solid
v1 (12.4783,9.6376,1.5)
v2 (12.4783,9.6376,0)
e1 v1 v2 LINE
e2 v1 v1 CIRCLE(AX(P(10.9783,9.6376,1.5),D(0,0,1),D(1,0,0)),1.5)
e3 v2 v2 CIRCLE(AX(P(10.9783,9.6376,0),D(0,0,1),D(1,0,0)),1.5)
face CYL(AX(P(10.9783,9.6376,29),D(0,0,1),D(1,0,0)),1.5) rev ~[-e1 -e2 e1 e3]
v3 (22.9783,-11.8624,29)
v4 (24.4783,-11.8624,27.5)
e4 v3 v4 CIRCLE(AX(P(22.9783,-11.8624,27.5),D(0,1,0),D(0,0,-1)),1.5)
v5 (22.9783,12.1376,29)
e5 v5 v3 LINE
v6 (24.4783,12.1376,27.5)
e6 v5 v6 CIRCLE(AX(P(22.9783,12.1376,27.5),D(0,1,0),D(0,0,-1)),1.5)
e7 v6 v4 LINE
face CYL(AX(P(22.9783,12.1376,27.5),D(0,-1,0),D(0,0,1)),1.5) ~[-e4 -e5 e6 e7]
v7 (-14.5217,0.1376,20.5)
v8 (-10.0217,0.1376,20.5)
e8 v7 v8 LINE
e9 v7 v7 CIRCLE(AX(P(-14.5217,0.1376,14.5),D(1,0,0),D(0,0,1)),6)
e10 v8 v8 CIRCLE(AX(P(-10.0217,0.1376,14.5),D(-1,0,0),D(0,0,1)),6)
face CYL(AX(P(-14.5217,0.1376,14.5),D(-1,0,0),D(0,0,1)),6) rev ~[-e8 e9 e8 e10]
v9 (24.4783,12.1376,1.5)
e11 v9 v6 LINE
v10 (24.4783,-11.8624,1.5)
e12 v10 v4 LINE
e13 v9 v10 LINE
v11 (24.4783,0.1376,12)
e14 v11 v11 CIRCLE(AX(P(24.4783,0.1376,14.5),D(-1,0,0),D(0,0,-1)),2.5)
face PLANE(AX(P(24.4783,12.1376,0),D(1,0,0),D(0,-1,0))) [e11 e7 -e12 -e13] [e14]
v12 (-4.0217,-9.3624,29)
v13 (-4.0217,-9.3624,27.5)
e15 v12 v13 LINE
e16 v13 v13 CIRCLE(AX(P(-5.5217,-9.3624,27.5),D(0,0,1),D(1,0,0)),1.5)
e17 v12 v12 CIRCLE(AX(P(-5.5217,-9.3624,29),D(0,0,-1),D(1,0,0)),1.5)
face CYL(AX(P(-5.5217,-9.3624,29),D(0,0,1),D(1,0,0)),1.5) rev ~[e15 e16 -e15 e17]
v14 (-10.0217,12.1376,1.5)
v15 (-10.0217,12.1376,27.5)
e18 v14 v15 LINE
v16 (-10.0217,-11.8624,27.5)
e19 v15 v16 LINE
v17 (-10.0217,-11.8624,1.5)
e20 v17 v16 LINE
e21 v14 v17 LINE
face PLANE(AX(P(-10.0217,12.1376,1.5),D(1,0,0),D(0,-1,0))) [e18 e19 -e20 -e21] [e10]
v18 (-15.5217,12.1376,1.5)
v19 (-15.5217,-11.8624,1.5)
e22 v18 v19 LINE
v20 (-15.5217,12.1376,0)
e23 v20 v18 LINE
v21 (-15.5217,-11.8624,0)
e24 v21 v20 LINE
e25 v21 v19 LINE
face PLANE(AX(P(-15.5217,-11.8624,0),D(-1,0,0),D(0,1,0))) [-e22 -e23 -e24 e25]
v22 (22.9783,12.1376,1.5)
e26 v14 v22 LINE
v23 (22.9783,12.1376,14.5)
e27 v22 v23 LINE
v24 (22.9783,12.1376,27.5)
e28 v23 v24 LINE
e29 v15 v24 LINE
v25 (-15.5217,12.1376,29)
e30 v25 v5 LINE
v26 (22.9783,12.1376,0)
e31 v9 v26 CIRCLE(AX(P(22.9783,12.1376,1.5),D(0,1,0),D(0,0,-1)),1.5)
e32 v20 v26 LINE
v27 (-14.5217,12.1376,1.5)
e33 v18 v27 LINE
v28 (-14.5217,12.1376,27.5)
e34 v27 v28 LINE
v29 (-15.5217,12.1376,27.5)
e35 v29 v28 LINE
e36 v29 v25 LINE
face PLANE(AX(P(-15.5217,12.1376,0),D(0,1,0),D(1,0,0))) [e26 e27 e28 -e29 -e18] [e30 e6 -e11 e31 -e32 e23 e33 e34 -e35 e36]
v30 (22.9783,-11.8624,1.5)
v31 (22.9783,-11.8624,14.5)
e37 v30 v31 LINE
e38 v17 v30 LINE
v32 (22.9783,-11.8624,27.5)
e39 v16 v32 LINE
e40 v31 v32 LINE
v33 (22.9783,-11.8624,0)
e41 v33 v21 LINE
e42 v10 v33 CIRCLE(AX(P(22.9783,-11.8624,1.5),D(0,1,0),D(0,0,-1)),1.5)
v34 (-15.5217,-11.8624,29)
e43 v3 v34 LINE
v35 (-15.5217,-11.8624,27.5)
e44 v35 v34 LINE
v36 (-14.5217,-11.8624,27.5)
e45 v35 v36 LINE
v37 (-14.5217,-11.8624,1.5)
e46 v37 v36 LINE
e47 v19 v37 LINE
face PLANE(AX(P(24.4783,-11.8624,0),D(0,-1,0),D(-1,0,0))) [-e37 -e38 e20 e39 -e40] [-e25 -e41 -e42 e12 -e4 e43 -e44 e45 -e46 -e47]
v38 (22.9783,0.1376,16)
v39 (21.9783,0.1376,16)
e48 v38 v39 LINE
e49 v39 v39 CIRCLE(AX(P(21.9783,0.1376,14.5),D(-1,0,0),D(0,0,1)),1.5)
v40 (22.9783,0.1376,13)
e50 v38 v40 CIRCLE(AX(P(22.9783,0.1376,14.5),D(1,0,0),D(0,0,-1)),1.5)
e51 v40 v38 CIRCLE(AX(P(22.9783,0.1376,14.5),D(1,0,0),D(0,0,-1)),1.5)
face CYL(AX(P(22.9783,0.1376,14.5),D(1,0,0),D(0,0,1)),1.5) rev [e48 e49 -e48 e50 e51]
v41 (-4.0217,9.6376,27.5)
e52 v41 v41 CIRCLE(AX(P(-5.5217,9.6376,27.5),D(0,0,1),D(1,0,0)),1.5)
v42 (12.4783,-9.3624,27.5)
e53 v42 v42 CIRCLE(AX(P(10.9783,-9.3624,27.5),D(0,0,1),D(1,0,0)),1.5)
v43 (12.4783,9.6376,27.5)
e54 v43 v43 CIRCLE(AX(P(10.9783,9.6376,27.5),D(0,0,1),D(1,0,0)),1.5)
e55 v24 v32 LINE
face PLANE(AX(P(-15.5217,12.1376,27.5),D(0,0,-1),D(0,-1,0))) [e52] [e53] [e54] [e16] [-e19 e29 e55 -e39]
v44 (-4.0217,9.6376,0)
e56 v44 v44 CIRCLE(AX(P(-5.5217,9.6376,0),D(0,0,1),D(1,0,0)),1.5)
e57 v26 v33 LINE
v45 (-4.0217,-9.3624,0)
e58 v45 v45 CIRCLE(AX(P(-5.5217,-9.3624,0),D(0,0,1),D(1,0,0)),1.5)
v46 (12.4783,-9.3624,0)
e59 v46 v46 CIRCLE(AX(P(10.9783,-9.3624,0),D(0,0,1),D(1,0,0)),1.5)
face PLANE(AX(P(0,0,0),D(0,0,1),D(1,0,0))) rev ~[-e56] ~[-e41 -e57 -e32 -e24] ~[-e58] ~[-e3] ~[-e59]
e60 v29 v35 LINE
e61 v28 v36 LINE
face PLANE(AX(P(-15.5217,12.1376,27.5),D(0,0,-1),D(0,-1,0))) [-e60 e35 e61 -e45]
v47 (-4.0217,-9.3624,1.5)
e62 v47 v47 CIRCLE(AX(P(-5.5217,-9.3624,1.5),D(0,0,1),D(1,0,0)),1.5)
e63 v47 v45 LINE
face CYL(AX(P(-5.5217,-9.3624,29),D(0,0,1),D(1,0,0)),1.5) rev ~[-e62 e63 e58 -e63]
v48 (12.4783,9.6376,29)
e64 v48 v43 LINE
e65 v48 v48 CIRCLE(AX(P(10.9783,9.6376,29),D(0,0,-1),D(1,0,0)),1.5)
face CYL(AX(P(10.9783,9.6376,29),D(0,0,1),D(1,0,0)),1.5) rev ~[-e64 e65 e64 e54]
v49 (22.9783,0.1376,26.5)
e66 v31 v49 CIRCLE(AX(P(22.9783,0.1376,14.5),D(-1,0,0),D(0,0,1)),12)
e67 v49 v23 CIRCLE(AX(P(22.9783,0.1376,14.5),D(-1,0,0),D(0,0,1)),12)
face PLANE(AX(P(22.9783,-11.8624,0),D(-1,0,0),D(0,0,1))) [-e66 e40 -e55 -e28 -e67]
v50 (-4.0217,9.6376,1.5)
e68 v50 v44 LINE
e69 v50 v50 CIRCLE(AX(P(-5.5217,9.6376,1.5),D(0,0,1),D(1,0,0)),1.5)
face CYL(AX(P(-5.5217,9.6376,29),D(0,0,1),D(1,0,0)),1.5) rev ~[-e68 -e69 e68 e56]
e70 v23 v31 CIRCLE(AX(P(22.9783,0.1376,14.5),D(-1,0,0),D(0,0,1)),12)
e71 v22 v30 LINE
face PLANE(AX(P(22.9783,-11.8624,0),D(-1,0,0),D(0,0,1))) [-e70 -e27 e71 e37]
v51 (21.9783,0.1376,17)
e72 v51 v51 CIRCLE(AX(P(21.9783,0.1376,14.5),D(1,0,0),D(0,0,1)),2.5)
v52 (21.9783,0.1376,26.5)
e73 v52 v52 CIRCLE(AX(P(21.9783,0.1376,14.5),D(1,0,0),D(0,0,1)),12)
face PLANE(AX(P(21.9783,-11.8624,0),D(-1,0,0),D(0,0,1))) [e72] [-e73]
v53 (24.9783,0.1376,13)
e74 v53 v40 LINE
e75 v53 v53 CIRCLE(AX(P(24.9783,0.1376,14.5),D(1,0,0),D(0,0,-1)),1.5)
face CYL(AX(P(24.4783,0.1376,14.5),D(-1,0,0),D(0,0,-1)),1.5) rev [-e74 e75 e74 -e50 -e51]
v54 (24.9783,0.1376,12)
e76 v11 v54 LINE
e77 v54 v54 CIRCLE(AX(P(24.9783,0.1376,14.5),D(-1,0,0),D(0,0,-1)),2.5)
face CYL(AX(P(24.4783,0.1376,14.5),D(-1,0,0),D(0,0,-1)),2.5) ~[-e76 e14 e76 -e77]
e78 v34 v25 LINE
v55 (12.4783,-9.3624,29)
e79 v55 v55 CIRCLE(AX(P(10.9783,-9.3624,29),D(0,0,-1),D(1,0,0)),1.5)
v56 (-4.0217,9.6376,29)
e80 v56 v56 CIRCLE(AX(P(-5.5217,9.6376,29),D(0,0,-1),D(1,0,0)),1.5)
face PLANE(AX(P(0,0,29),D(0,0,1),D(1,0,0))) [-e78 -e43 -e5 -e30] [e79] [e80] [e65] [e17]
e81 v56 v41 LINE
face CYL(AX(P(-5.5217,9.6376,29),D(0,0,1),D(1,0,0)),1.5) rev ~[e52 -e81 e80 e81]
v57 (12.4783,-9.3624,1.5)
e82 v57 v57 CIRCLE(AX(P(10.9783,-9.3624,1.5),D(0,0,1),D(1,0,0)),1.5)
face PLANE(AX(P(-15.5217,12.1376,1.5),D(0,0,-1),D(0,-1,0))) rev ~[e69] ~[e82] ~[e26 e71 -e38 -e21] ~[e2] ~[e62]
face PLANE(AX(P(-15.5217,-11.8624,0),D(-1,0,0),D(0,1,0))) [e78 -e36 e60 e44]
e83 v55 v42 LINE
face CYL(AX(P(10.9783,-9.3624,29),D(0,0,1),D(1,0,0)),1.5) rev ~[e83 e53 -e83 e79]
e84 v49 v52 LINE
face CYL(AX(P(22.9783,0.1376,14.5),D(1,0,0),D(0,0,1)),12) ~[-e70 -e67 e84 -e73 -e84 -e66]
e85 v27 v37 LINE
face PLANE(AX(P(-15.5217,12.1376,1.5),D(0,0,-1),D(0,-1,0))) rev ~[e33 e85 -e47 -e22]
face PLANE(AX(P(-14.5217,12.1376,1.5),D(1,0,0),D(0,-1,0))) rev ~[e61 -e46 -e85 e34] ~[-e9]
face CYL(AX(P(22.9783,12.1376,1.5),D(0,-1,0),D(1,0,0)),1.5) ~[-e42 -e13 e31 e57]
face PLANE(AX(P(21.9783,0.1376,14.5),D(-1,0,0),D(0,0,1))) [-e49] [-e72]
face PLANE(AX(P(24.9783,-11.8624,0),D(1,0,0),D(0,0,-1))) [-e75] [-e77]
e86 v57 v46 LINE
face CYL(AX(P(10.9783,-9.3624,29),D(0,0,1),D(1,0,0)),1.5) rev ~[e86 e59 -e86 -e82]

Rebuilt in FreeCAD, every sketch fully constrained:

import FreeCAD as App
import Part
import Sketcher

V = App.Vector
Q = App.Units.Quantity


def edges_at(feature, points):
    """Names of the edges that pass closest to the given points."""
    edges = feature.Shape.Edges
    near = lambda p: min(range(len(edges)), key=lambda i: edges[i].distToShape(Part.Vertex(*p))[0])
    return sorted({f"Edge{near(p) + 1}" for p in points})

doc = App.newDocument("Part")
params = doc.addObject("Spreadsheet::Sheet", "Params")
for row, (alias, value) in enumerate([
    ("sketch1_width", "40 mm"),
    ("sketch1_height", "24 mm"),
    ("pad1_length", "29 mm"),
    ("sketch2_width", "24 mm"),
    ("sketch2_height", "26 mm"),
    ("pocket1_length", "38.5 mm"),
    ("sketch3_diameter", "5 mm"),
    ("sketch3_diameter2", "3 mm"),
    ("pad2_length", "0.5 mm"),
    ("sketch4_diameter", "3 mm"),
    ("pocket2_length", "1.5 mm"),
    ("sketch5_height", "24 mm"),
    ("sketch5_width", "4.5 mm"),
    ("pad3_length", "26 mm"),
    ("sketch6_diameter", "12 mm"),
    ("pocket3_length", "4.5 mm"),
    ("sketch7_diameter", "24 mm"),
    ("sketch7_diameter2", "5 mm"),
    ("pad4_length", "1 mm"),
    ("fillet_radius", "1.5 mm"),
    ("fillet2_radius", "1.5 mm"),
    ("sketch8_diameter", "3 mm"),
    ("pocket4_length", "29 mm"),
    ("sketch9_diameter", "3 mm"),
    ("pocket5_length", "29 mm"),
    ("sketch10_diameter", "5 mm"),
    ("sketch10_diameter2", "3 mm"),
    ("pad5_length", "1 mm"),
], start=1):
    params.set(f"A{row}", alias)
    params.set(f"B{row}", "=" + value)
    params.setAlias(f"B{row}", alias)

body = doc.addObject("PartDesign::Body", "Body")

sketch1 = doc.addObject("Sketcher::SketchObject", "Sketch")
body.addObject(sketch1)
sketch1.AttachmentSupport = (doc.XY_Plane, [""])
sketch1.MapMode = "FlatFace"
sketch1.addGeometry([
    Part.LineSegment(V(24.4783, 12.1376, 0), V(-15.5217, 12.1376, 0)),
    Part.LineSegment(V(-15.5217, 12.1376, 0), V(-15.5217, -11.8624, 0)),
    Part.LineSegment(V(-15.5217, -11.8624, 0), V(24.4783, -11.8624, 0)),
    Part.LineSegment(V(24.4783, -11.8624, 0), V(24.4783, 12.1376, 0)),
], False)
sketch1.addConstraint([
    Sketcher.Constraint("Coincident", 0, 2, 1, 1),
    Sketcher.Constraint("Coincident", 1, 2, 2, 1),
    Sketcher.Constraint("Coincident", 2, 2, 3, 1),
    Sketcher.Constraint("Coincident", 3, 2, 0, 1),
    Sketcher.Constraint("Horizontal", 0),
    Sketcher.Constraint("Vertical", 1),
    Sketcher.Constraint("Horizontal", 2),
    Sketcher.Constraint("Vertical", 3),
    Sketcher.Constraint("DistanceX", 0, 2, 0, 1, Q("40 mm")),
    Sketcher.Constraint("DistanceY", 1, 2, 1, 1, Q("24 mm")),
    Sketcher.Constraint("DistanceX", 0, 2, -1, 1, Q("15.5217 mm")),
    Sketcher.Constraint("DistanceY", -1, 1, 0, 2, Q("12.1376 mm")),
])
sketch1.setExpression("Constraints[8]", "Params.sketch1_width")
sketch1.setExpression("Constraints[9]", "Params.sketch1_height")
pad1 = doc.addObject("PartDesign::Pad", "Pad")
body.addObject(pad1)
pad1.Profile = sketch1
pad1.setExpression("Length", "Params.pad1_length")

sketch2 = doc.addObject("Sketcher::SketchObject", "Sketch001")
body.addObject(sketch2)
sketch2.AttachmentSupport = (doc.YZ_Plane, [""])
sketch2.MapMode = "FlatFace"
sketch2.AttachmentOffset = App.Placement(V(0, 0, -15.5217), App.Rotation())
sketch2.addGeometry([
    Part.LineSegment(V(12.1376, 1.5, 0), V(-11.8624, 1.5, 0)),
    Part.LineSegment(V(-11.8624, 1.5, 0), V(-11.8624, 27.5, 0)),
    Part.LineSegment(V(-11.8624, 27.5, 0), V(12.1376, 27.5, 0)),
    Part.LineSegment(V(12.1376, 27.5, 0), V(12.1376, 1.5, 0)),
], False)
sketch2.addConstraint([
    Sketcher.Constraint("Coincident", 0, 2, 1, 1),
    Sketcher.Constraint("Coincident", 1, 2, 2, 1),
    Sketcher.Constraint("Coincident", 2, 2, 3, 1),
    Sketcher.Constraint("Coincident", 3, 2, 0, 1),
    Sketcher.Constraint("Horizontal", 0),
    Sketcher.Constraint("Vertical", 1),
    Sketcher.Constraint("Horizontal", 2),
    Sketcher.Constraint("Vertical", 3),
    Sketcher.Constraint("DistanceX", 0, 2, 0, 1, Q("24 mm")),
    Sketcher.Constraint("DistanceY", -1, 1, 0, 2, Q("1.5 mm")),
    Sketcher.Constraint("DistanceY", 1, 1, 1, 2, Q("26 mm")),
    Sketcher.Constraint("DistanceX", 0, 2, -1, 1, Q("11.8624 mm")),
])
sketch2.setExpression("Constraints[8]", "Params.sketch2_width")
sketch2.setExpression("Constraints[10]", "Params.sketch2_height")
pocket1 = doc.addObject("PartDesign::Pocket", "Pocket")
body.addObject(pocket1)
pocket1.Profile = sketch2
pocket1.setExpression("Length", "Params.pocket1_length")
pocket1.Reversed = True

sketch3 = doc.addObject("Sketcher::SketchObject", "Sketch002")
body.addObject(sketch3)
sketch3.AttachmentSupport = (doc.YZ_Plane, [""])
sketch3.MapMode = "FlatFace"
sketch3.AttachmentOffset = App.Placement(V(0, 0, 24.4783), App.Rotation())
sketch3.addGeometry([
    Part.Circle(V(0.1376, 14.5, 0), V(0, 0, 1), 2.5),
    Part.Circle(V(0.1376, 14.5, 0), V(0, 0, 1), 1.5),
], False)
sketch3.addConstraint([
    Sketcher.Constraint("Coincident", 1, 3, 0, 3),
    Sketcher.Constraint("Diameter", 0, Q("5 mm")),
    Sketcher.Constraint("Diameter", 1, Q("3 mm")),
    Sketcher.Constraint("DistanceY", -1, 1, 0, 3, Q("14.5 mm")),
    Sketcher.Constraint("DistanceX", -1, 1, 0, 3, Q("0.1376 mm")),
])
sketch3.setExpression("Constraints[1]", "Params.sketch3_diameter")
sketch3.setExpression("Constraints[2]", "Params.sketch3_diameter2")
pad2 = doc.addObject("PartDesign::Pad", "Pad001")
body.addObject(pad2)
pad2.Profile = sketch3
pad2.setExpression("Length", "Params.pad2_length")

sketch4 = doc.addObject("Sketcher::SketchObject", "Sketch003")
body.addObject(sketch4)
sketch4.AttachmentSupport = (doc.YZ_Plane, [""])
sketch4.MapMode = "FlatFace"
sketch4.AttachmentOffset = App.Placement(V(0, 0, 24.4783), App.Rotation())
sketch4.addGeometry(Part.Circle(V(0.1376, 14.5, 0), V(0, 0, 1), 1.5), False)
sketch4.addConstraint([
    Sketcher.Constraint("Diameter", 0, Q("3 mm")),
    Sketcher.Constraint("DistanceY", -1, 1, 0, 3, Q("14.5 mm")),
    Sketcher.Constraint("DistanceX", -1, 1, 0, 3, Q("0.1376 mm")),
])
sketch4.setExpression("Constraints[0]", "Params.sketch4_diameter")
pocket2 = doc.addObject("PartDesign::Pocket", "Pocket001")
body.addObject(pocket2)
pocket2.Profile = sketch4
pocket2.setExpression("Length", "Params.pocket2_length")

sketch5 = doc.addObject("Sketcher::SketchObject", "Sketch004")
body.addObject(sketch5)
sketch5.AttachmentSupport = (doc.XY_Plane, [""])
sketch5.MapMode = "FlatFace"
sketch5.AttachmentOffset = App.Placement(V(0, 0, 1.5), App.Rotation())
sketch5.addGeometry([
    Part.LineSegment(V(-10.0217, 12.1376, 0), V(-14.5217, 12.1376, 0)),
    Part.LineSegment(V(-14.5217, 12.1376, 0), V(-14.5217, -11.8624, 0)),
    Part.LineSegment(V(-14.5217, -11.8624, 0), V(-10.0217, -11.8624, 0)),
    Part.LineSegment(V(-10.0217, -11.8624, 0), V(-10.0217, 12.1376, 0)),
], False)
sketch5.addConstraint([
    Sketcher.Constraint("Coincident", 0, 2, 1, 1),
    Sketcher.Constraint("Coincident", 1, 2, 2, 1),
    Sketcher.Constraint("Coincident", 2, 2, 3, 1),
    Sketcher.Constraint("Coincident", 3, 2, 0, 1),
    Sketcher.Constraint("Horizontal", 0),
    Sketcher.Constraint("Vertical", 1),
    Sketcher.Constraint("Horizontal", 2),
    Sketcher.Constraint("Vertical", 3),
    Sketcher.Constraint("DistanceY", 1, 2, 1, 1, Q("24 mm")),
    Sketcher.Constraint("DistanceX", 0, 2, 0, 1, Q("4.5 mm")),
    Sketcher.Constraint("DistanceX", 0, 2, -1, 1, Q("14.5217 mm")),
    Sketcher.Constraint("DistanceY", -1, 1, 0, 2, Q("12.1376 mm")),
])
sketch5.setExpression("Constraints[8]", "Params.sketch5_height")
sketch5.setExpression("Constraints[9]", "Params.sketch5_width")
pad3 = doc.addObject("PartDesign::Pad", "Pad002")
body.addObject(pad3)
pad3.Profile = sketch5
pad3.setExpression("Length", "Params.pad3_length")

sketch6 = doc.addObject("Sketcher::SketchObject", "Sketch005")
body.addObject(sketch6)
sketch6.AttachmentSupport = (doc.YZ_Plane, [""])
sketch6.MapMode = "FlatFace"
sketch6.AttachmentOffset = App.Placement(V(0, 0, -14.5217), App.Rotation())
sketch6.addGeometry(Part.Circle(V(0.1376, 14.5, 0), V(0, 0, 1), 6), False)
sketch6.addConstraint([
    Sketcher.Constraint("Diameter", 0, Q("12 mm")),
    Sketcher.Constraint("DistanceY", -1, 1, 0, 3, Q("14.5 mm")),
    Sketcher.Constraint("DistanceX", -1, 1, 0, 3, Q("0.1376 mm")),
])
sketch6.setExpression("Constraints[0]", "Params.sketch6_diameter")
pocket3 = doc.addObject("PartDesign::Pocket", "Pocket002")
body.addObject(pocket3)
pocket3.Profile = sketch6
pocket3.setExpression("Length", "Params.pocket3_length")
pocket3.Reversed = True

sketch7 = doc.addObject("Sketcher::SketchObject", "Sketch006")
body.addObject(sketch7)
sketch7.AttachmentSupport = (doc.YZ_Plane, [""])
sketch7.MapMode = "FlatFace"
sketch7.AttachmentOffset = App.Placement(V(0, 0, 22.9783), App.Rotation())
sketch7.addGeometry([
    Part.Circle(V(0.1376, 14.5, 0), V(0, 0, 1), 12),
    Part.Circle(V(0.1376, 14.5, 0), V(0, 0, 1), 2.5),
], False)
sketch7.addConstraint([
    Sketcher.Constraint("Coincident", 1, 3, 0, 3),
    Sketcher.Constraint("Diameter", 0, Q("24 mm")),
    Sketcher.Constraint("Diameter", 1, Q("5 mm")),
    Sketcher.Constraint("DistanceY", -1, 1, 0, 3, Q("14.5 mm")),
    Sketcher.Constraint("DistanceX", -1, 1, 0, 3, Q("0.1376 mm")),
])
sketch7.setExpression("Constraints[1]", "Params.sketch7_diameter")
sketch7.setExpression("Constraints[2]", "Params.sketch7_diameter2")
pad4 = doc.addObject("PartDesign::Pad", "Pad003")
body.addObject(pad4)
pad4.Profile = sketch7
pad4.setExpression("Length", "Params.pad4_length")
pad4.Reversed = True
doc.recompute()

fillet = doc.addObject("PartDesign::Fillet", "Fillet")
body.addObject(fillet)
fillet.Base = (pad4, edges_at(pad4, [(24.478, 0.138, 29)]))
fillet.setExpression("Radius", "Params.fillet_radius")
doc.recompute()

fillet2 = doc.addObject("PartDesign::Fillet", "Fillet001")
body.addObject(fillet2)
fillet2.Base = (fillet, edges_at(fillet, [(24.478, 0.138, 0)]))
fillet2.setExpression("Radius", "Params.fillet2_radius")

sketch8 = doc.addObject("Sketcher::SketchObject", "Sketch007")
body.addObject(sketch8)
sketch8.AttachmentSupport = (doc.XY_Plane, [""])
sketch8.MapMode = "FlatFace"
sketch8.AttachmentOffset = App.Placement(V(0, 0, 29), App.Rotation())
sketch8.addGeometry([
    Part.Circle(V(-5.5217, -9.3624, 0), V(0, 0, 1), 1.5),
    Part.Circle(V(-5.5217, 9.6376, 0), V(0, 0, 1), 1.5),
], False)
sketch8.addConstraint([
    Sketcher.Constraint("Equal", 0, 1),
    Sketcher.Constraint("Vertical", 0, 3, 1, 3),
    Sketcher.Constraint("Diameter", 0, Q("3 mm")),
    Sketcher.Constraint("DistanceY", 0, 3, 1, 3, Q("19 mm")),
    Sketcher.Constraint("DistanceX", 0, 3, -1, 1, Q("5.5217 mm")),
    Sketcher.Constraint("DistanceY", 0, 3, -1, 1, Q("9.3624 mm")),
])
sketch8.setExpression("Constraints[2]", "Params.sketch8_diameter")
pocket4 = doc.addObject("PartDesign::Pocket", "Pocket003")
body.addObject(pocket4)
pocket4.Profile = sketch8
pocket4.setExpression("Length", "Params.pocket4_length")

sketch9 = doc.addObject("Sketcher::SketchObject", "Sketch008")
body.addObject(sketch9)
sketch9.AttachmentSupport = (doc.XY_Plane, [""])
sketch9.MapMode = "FlatFace"
sketch9.AttachmentOffset = App.Placement(V(0, 0, 29), App.Rotation())
sketch9.addGeometry([
    Part.Circle(V(10.9783, -9.3624, 0), V(0, 0, 1), 1.5),
    Part.Circle(V(10.9783, 9.6376, 0), V(0, 0, 1), 1.5),
], False)
sketch9.addConstraint([
    Sketcher.Constraint("Equal", 0, 1),
    Sketcher.Constraint("Vertical", 0, 3, 1, 3),
    Sketcher.Constraint("Diameter", 0, Q("3 mm")),
    Sketcher.Constraint("DistanceY", 0, 3, 1, 3, Q("19 mm")),
    Sketcher.Constraint("DistanceX", -1, 1, 0, 3, Q("10.9783 mm")),
    Sketcher.Constraint("DistanceY", 0, 3, -1, 1, Q("9.3624 mm")),
])
sketch9.setExpression("Constraints[2]", "Params.sketch9_diameter")
pocket5 = doc.addObject("PartDesign::Pocket", "Pocket004")
body.addObject(pocket5)
pocket5.Profile = sketch9
pocket5.setExpression("Length", "Params.pocket5_length")

sketch10 = doc.addObject("Sketcher::SketchObject", "Sketch009")
body.addObject(sketch10)
sketch10.AttachmentSupport = (doc.YZ_Plane, [""])
sketch10.MapMode = "FlatFace"
sketch10.AttachmentOffset = App.Placement(V(0, 0, 22.9783), App.Rotation())
sketch10.addGeometry([
    Part.Circle(V(0.1376, 14.5, 0), V(0, 0, 1), 2.5),
    Part.Circle(V(0.1376, 14.5, 0), V(0, 0, 1), 1.5),
], False)
sketch10.addConstraint([
    Sketcher.Constraint("Coincident", 1, 3, 0, 3),
    Sketcher.Constraint("Diameter", 0, Q("5 mm")),
    Sketcher.Constraint("Diameter", 1, Q("3 mm")),
    Sketcher.Constraint("DistanceY", -1, 1, 0, 3, Q("14.5 mm")),
    Sketcher.Constraint("DistanceX", -1, 1, 0, 3, Q("0.1376 mm")),
])
sketch10.setExpression("Constraints[1]", "Params.sketch10_diameter")
sketch10.setExpression("Constraints[2]", "Params.sketch10_diameter2")
pad5 = doc.addObject("PartDesign::Pad", "Pad004")
body.addObject(pad5)
pad5.Profile = sketch10
pad5.setExpression("Length", "Params.pad5_length")
pad5.Reversed = True

doc.recompute()
